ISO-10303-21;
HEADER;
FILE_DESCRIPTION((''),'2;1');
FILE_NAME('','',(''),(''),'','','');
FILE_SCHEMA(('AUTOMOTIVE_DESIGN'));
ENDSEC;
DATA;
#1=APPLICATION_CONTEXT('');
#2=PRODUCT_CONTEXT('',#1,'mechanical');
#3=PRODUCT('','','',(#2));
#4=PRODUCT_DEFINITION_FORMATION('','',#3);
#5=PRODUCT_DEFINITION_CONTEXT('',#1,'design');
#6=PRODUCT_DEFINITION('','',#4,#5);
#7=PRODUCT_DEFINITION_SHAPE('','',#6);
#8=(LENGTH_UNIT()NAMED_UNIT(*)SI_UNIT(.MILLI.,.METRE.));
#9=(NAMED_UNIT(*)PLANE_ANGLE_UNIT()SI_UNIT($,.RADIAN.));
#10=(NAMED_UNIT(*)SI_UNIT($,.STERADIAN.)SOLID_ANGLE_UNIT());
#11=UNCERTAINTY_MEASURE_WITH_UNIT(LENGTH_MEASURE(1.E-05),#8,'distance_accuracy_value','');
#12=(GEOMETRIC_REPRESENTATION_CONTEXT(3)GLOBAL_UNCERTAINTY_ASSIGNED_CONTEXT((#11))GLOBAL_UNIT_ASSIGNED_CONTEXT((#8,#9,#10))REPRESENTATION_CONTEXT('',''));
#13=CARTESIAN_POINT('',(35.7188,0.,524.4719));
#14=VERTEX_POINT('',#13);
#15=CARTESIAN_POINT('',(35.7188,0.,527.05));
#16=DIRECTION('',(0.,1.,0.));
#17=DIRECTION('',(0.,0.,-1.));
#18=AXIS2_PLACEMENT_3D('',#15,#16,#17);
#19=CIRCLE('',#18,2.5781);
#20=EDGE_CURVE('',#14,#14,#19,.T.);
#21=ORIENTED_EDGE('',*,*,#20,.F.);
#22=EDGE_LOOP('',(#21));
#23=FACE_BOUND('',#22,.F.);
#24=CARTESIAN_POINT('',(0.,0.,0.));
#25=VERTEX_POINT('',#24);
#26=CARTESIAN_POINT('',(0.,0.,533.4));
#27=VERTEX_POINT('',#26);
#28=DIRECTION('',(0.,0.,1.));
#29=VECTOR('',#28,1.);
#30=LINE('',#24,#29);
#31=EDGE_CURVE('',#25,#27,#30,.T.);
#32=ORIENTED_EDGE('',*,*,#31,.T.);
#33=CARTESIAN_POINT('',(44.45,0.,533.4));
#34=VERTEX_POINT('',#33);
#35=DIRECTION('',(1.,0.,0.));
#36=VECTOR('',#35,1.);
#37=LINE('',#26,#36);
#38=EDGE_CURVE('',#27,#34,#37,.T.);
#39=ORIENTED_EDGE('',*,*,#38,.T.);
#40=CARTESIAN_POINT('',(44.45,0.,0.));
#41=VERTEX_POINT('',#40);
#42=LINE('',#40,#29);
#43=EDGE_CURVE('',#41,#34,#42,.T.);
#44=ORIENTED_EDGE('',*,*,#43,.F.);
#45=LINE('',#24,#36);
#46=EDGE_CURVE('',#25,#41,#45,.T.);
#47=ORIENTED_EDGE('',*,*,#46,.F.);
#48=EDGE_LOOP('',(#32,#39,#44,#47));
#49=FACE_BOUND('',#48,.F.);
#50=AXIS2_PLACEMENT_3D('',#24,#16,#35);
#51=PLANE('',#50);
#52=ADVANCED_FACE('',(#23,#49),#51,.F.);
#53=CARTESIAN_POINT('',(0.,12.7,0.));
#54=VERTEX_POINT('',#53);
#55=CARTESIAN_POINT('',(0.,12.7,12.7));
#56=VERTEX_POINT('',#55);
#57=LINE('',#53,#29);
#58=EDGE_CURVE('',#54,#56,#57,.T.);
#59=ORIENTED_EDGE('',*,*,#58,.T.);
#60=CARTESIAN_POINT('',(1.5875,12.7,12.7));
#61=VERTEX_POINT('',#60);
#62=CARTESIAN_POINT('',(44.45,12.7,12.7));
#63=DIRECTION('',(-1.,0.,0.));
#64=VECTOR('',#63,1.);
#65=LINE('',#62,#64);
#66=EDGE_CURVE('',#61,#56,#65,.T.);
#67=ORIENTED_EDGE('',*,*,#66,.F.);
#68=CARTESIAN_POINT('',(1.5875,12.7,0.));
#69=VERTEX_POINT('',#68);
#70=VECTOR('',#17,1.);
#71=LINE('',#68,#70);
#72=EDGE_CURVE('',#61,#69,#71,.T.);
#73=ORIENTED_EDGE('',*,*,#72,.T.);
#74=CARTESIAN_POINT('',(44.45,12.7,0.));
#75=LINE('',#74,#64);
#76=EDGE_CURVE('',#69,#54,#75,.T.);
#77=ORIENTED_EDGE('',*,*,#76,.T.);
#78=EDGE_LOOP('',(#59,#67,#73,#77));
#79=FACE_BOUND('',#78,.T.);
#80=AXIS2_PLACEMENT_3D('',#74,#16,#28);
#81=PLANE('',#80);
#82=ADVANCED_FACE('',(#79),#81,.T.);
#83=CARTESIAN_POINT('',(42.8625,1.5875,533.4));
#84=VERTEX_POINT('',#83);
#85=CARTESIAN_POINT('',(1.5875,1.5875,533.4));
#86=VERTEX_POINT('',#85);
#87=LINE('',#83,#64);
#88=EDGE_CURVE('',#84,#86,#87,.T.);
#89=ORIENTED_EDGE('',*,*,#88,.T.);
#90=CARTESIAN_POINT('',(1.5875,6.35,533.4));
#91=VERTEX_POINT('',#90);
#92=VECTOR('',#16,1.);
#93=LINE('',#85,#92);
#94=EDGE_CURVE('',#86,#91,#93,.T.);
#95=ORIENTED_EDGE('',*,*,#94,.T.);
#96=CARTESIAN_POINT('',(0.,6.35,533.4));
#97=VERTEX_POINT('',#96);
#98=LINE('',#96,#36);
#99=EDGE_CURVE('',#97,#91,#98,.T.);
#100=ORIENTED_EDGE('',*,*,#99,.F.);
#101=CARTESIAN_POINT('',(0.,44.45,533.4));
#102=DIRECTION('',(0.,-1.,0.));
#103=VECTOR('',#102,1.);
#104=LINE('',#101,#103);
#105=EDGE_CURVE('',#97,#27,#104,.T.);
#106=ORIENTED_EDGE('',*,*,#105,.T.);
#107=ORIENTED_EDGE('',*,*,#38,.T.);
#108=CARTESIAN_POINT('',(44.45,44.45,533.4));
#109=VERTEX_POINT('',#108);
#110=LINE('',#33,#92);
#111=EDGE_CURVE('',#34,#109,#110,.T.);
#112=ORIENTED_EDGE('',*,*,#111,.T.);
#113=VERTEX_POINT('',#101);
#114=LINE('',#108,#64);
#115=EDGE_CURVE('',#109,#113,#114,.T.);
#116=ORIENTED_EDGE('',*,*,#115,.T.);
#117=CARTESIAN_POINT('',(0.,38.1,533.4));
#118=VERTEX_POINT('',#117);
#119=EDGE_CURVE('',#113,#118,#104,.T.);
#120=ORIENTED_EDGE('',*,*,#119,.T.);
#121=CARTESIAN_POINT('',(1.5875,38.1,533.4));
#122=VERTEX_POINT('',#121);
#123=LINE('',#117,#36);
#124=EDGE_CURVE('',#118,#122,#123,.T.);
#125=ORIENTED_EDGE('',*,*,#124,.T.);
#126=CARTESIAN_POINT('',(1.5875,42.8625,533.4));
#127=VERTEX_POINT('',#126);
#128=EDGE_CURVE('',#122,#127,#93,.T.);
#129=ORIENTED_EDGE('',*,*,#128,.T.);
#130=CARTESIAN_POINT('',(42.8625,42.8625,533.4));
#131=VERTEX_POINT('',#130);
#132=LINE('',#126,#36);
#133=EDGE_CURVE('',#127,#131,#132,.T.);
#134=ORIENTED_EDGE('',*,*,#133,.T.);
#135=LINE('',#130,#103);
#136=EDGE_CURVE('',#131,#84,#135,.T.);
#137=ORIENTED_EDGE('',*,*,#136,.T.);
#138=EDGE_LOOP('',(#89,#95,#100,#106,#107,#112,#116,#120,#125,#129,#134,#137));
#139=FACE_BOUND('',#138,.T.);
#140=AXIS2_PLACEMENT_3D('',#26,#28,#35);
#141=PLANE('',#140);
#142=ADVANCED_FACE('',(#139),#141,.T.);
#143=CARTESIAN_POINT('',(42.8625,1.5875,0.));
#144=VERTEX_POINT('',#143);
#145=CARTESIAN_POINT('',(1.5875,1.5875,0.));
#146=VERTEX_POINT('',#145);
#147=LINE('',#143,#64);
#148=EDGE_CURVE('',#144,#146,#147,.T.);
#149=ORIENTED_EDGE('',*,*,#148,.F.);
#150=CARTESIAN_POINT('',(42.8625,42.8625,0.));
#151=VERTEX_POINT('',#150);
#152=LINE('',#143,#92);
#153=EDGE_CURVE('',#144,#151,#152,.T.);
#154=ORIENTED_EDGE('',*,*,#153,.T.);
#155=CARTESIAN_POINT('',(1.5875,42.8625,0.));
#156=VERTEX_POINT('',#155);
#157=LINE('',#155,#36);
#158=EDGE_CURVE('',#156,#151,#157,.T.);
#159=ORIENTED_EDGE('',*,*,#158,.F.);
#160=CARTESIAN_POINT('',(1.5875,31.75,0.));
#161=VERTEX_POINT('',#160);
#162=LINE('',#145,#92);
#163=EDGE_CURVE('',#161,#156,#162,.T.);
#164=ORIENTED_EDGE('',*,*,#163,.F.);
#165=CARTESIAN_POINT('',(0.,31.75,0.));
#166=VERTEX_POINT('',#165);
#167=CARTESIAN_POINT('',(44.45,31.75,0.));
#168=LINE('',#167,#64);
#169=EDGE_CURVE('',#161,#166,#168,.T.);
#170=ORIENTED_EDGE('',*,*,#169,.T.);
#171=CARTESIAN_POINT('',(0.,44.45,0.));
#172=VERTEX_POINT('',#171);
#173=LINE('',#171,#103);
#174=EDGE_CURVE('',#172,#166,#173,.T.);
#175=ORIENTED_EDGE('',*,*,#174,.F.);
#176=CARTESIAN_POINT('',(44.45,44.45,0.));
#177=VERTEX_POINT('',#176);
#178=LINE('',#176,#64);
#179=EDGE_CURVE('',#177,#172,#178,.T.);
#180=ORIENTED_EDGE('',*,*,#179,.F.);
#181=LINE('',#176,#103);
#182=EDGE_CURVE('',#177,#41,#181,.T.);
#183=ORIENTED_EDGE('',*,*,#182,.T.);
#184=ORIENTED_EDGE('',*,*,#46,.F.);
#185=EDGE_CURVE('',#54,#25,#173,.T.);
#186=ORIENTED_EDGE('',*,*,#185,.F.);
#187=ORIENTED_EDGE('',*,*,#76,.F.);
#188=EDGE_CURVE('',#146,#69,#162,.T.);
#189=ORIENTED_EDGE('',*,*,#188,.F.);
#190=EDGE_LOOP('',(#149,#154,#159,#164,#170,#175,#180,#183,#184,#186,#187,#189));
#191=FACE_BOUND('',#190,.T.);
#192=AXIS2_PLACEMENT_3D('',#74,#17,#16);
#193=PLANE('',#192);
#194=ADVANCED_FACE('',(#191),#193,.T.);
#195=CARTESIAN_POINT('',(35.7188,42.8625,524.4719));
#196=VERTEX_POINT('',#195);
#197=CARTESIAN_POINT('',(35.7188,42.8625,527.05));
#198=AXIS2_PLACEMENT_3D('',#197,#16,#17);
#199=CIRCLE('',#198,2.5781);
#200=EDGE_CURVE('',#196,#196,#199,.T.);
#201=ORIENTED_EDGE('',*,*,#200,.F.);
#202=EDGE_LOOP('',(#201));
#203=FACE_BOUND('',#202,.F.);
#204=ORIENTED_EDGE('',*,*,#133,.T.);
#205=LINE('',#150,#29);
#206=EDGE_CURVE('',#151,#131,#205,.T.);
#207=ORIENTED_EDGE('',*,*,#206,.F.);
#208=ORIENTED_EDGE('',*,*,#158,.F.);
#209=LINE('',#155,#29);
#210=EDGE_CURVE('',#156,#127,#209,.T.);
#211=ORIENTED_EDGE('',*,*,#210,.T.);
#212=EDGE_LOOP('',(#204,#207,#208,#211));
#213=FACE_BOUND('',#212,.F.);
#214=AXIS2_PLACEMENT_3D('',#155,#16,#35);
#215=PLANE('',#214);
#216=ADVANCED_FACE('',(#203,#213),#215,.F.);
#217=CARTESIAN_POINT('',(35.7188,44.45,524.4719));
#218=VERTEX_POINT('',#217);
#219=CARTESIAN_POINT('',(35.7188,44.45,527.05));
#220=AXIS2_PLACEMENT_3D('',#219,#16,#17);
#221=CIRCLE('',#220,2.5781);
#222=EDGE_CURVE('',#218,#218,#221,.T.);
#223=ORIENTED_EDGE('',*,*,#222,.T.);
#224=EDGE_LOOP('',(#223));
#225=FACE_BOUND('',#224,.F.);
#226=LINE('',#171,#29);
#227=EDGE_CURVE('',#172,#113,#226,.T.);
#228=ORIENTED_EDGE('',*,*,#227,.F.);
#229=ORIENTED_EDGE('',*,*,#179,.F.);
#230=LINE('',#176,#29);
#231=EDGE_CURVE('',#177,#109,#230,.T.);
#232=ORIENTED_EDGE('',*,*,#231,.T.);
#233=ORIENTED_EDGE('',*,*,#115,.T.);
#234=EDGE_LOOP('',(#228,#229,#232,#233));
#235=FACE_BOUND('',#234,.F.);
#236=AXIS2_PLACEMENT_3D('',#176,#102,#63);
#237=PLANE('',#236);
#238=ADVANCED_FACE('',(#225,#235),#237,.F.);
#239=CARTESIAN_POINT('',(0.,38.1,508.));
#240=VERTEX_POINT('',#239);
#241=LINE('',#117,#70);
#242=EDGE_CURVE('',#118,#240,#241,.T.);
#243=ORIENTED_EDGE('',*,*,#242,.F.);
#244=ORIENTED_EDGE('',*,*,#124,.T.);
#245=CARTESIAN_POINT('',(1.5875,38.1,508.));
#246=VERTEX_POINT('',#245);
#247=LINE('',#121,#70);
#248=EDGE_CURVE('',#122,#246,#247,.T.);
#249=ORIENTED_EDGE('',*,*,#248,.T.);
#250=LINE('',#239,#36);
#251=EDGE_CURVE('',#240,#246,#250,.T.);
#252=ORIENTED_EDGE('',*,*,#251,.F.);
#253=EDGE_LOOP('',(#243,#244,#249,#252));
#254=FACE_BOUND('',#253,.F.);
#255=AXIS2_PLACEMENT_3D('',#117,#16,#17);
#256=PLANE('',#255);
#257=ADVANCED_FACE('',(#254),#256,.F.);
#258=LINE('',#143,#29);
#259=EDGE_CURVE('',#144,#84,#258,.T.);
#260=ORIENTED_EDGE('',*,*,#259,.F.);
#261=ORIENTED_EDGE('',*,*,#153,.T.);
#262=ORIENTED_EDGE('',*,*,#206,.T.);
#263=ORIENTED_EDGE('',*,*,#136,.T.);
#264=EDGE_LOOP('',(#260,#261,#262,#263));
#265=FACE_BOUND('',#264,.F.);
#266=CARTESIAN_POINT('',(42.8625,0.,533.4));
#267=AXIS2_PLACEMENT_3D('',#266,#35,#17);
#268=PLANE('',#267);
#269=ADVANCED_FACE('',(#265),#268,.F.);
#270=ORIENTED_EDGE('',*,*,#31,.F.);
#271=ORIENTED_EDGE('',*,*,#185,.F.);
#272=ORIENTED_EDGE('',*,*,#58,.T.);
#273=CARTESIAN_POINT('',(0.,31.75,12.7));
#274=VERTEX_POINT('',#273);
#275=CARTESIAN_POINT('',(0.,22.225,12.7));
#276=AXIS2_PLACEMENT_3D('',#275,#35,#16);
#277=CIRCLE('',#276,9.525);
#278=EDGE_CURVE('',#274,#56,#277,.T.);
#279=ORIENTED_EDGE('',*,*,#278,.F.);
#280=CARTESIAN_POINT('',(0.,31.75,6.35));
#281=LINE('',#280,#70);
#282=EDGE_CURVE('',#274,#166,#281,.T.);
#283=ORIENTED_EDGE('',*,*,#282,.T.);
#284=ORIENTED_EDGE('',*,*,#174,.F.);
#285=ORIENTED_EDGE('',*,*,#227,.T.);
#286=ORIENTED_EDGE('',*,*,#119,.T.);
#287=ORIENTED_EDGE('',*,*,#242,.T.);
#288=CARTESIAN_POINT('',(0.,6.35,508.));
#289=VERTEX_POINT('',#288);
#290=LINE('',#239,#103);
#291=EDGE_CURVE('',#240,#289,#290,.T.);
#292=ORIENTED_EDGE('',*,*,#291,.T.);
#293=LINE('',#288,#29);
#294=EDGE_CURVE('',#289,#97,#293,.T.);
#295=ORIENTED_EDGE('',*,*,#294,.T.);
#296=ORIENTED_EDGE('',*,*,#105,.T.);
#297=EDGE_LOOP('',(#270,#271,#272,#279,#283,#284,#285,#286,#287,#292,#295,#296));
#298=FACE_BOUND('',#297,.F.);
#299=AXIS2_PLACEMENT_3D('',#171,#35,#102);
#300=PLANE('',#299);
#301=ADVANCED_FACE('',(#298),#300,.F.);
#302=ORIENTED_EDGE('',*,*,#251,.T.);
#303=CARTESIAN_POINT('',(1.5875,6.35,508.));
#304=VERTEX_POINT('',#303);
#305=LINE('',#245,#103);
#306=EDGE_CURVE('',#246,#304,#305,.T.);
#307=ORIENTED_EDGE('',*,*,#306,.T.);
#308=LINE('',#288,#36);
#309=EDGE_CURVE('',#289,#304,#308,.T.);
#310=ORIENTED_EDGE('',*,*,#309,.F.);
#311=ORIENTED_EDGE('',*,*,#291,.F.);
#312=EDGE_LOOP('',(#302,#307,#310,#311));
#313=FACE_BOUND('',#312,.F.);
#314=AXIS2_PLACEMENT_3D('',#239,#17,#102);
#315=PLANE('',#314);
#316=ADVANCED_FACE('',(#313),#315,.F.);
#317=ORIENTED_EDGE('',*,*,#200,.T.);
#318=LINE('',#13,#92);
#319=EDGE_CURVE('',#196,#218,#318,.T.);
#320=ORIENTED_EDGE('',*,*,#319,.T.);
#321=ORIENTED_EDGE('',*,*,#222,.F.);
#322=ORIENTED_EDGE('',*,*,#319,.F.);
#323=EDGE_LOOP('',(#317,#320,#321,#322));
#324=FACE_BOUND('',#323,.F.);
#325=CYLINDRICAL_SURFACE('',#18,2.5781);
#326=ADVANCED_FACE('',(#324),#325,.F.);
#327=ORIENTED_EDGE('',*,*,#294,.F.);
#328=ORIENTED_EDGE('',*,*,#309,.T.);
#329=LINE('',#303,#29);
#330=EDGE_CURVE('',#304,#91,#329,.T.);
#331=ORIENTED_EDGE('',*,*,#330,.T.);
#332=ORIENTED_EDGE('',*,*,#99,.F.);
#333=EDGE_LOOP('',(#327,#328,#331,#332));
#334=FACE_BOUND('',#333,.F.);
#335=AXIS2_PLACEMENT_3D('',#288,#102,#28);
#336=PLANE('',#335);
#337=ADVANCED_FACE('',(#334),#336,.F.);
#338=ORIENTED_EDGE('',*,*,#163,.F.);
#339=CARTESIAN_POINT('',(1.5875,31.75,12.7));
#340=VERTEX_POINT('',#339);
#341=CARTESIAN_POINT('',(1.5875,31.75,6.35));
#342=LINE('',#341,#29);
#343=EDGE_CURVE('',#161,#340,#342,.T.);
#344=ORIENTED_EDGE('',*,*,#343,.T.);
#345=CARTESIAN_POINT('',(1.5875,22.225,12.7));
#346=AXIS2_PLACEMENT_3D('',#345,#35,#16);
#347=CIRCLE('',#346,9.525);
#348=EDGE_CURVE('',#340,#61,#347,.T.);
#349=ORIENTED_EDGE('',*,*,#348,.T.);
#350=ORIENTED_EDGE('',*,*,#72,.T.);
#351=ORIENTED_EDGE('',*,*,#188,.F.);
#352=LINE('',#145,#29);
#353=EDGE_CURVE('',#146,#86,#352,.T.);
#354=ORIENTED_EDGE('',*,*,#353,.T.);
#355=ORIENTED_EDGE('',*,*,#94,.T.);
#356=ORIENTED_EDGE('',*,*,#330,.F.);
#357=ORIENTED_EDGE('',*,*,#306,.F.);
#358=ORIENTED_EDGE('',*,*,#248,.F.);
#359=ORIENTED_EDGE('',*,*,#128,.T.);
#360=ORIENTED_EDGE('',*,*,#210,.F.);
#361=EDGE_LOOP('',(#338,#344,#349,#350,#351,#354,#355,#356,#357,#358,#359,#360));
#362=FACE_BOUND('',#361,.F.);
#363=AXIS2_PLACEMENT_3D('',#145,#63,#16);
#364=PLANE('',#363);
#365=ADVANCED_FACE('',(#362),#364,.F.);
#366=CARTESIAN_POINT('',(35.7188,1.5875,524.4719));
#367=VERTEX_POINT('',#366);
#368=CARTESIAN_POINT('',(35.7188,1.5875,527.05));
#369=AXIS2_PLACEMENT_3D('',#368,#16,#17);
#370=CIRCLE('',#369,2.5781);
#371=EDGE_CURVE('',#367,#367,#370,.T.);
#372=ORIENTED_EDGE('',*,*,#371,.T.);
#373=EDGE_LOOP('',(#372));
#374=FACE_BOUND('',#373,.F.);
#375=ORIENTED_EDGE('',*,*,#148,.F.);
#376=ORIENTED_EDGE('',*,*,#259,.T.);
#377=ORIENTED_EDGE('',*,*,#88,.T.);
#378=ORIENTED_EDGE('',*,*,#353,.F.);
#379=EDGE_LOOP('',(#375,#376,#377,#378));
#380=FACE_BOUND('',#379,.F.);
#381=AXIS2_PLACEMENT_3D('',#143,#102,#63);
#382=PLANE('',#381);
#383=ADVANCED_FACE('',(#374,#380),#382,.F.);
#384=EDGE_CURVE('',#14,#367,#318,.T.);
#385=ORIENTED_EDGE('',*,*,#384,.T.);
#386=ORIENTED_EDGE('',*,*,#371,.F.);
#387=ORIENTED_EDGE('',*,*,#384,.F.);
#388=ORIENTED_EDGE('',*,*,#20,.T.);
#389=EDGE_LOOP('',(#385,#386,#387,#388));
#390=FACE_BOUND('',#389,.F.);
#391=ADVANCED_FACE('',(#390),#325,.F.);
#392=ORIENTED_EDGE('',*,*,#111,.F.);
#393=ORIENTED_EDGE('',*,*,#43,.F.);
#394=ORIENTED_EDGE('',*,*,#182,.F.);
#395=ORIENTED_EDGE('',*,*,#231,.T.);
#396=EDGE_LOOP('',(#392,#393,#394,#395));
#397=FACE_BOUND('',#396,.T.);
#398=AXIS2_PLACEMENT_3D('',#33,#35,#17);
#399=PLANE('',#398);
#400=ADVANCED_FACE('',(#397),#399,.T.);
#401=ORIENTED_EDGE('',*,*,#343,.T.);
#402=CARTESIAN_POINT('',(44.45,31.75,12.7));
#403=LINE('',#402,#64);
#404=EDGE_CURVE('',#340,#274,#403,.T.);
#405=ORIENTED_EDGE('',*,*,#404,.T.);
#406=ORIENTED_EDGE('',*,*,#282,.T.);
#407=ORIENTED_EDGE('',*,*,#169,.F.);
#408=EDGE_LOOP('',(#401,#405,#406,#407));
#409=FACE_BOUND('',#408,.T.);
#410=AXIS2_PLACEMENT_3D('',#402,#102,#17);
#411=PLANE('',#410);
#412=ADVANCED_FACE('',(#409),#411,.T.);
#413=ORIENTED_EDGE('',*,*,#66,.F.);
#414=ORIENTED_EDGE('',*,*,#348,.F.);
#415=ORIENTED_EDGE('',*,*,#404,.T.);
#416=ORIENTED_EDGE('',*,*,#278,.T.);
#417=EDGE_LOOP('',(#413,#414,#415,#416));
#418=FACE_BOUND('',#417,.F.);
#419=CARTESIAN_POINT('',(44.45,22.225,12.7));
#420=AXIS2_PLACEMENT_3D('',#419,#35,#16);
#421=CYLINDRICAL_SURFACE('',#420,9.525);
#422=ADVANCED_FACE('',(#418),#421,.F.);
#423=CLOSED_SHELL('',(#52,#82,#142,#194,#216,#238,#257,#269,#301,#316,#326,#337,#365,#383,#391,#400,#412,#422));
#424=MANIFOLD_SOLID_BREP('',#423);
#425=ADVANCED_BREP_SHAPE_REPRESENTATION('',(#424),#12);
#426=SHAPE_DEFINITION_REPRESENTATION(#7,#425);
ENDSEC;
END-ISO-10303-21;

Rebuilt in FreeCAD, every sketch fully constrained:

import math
import FreeCAD as App
import Part
import Sketcher
Q = App.Units.Quantity

doc = App.newDocument("Part")
body = doc.addObject("PartDesign::Body", "Body")

# Sketch on XY plane
sketch1 = body.newObject("Sketcher::SketchObject", "Sketch")
sketch1.AttachmentSupport = (doc.getObject("XY_Plane"), [""])
sketch1.MapMode = "FlatFace"
sketch1.addGeometry([
    Part.LineSegment(App.Vector(0, 44.45, 0), App.Vector(0, 0, 0)),  # 0
    Part.LineSegment(App.Vector(0, 0, 0), App.Vector(44.45, 0, 0)),  # 1
    Part.LineSegment(App.Vector(44.45, 0, 0), App.Vector(44.45, 44.45, 0)),  # 2
    Part.LineSegment(App.Vector(44.45, 44.45, 0), App.Vector(0, 44.45, 0)),  # 3
    Part.LineSegment(App.Vector(1.5875, 1.5875, 0), App.Vector(1.5875, 42.8625, 0)),  # 4
    Part.LineSegment(App.Vector(1.5875, 42.8625, 0), App.Vector(42.8625, 42.8625, 0)),  # 5
    Part.LineSegment(App.Vector(42.8625, 42.8625, 0), App.Vector(42.8625, 1.5875, 0)),  # 6
    Part.LineSegment(App.Vector(42.8625, 1.5875, 0), App.Vector(1.5875, 1.5875, 0)),  # 7
], False)
sketch1.addConstraint([
    Sketcher.Constraint("Coincident", 0, 2, 1, 1),
    Sketcher.Constraint("Coincident", 1, 2, 2, 1),
    Sketcher.Constraint("Coincident", 2, 2, 3, 1),
    Sketcher.Constraint("Coincident", 3, 2, 0, 1),
    Sketcher.Constraint("Coincident", 4, 2, 5, 1),
    Sketcher.Constraint("Coincident", 5, 2, 6, 1),
    Sketcher.Constraint("Coincident", 6, 2, 7, 1),
    Sketcher.Constraint("Coincident", 7, 2, 4, 1),
    Sketcher.Constraint("Vertical", 0),
    Sketcher.Constraint("Horizontal", 1),
    Sketcher.Constraint("Vertical", 2),
    Sketcher.Constraint("Horizontal", 3),
    Sketcher.Constraint("Vertical", 4),
    Sketcher.Constraint("Horizontal", 5),
    Sketcher.Constraint("Vertical", 6),
    Sketcher.Constraint("Horizontal", 7),
    Sketcher.Constraint("Coincident", 0, 2, -1, 1),
    Sketcher.Constraint("Equal", 3, 0),
    Sketcher.Constraint("Equal", 7, 4),
    Sketcher.Constraint("DistanceX", 1, 1, 1, 2, Q("1.75 in")),
    Sketcher.Constraint("DistanceX", -1, 1, 4, 2, Q("0.0625 in")),
    Sketcher.Constraint("DistanceY", -1, 1, 6, 2, Q("0.0625 in")),
    Sketcher.Constraint("DistanceY", 4, 2, 3, 2, Q("0.0625 in")),
])
pad1 = body.newObject("PartDesign::Pad", "Pad")
pad1.Profile = sketch1
pad1.Length = Q("21 in")

# Sketch on YZ plane
sketch2 = body.newObject("Sketcher::SketchObject", "Sketch001")
sketch2.AttachmentSupport = (doc.getObject("YZ_Plane"), [""])
sketch2.MapMode = "FlatFace"
sketch2.AttachmentOffset = App.Placement(App.Vector(0, 0, 1.75 * 25.4), App.Rotation())
sketch2.addGeometry([
    Part.ArcOfCircle(Part.Circle(App.Vector(22.225, 0, 0), App.Vector(0, 0, 1), 9.525), math.radians(180), math.radians(360)),
    Part.LineSegment(App.Vector(31.75, 0, 0), App.Vector(31.75, 12.7, 0)),
    Part.ArcOfCircle(Part.Circle(App.Vector(22.225, 12.7, 0), App.Vector(0, 0, 1), 9.525), math.radians(0), math.radians(180)),
    Part.LineSegment(App.Vector(12.7, 12.7, 0), App.Vector(12.7, 0, 0)),
], False)
sketch2.addConstraint([
    Sketcher.Constraint("Tangent", 0, 2, 1, 1),
    Sketcher.Constraint("Tangent", 1, 2, 2, 1),
    Sketcher.Constraint("Tangent", 2, 2, 3, 1),
    Sketcher.Constraint("Tangent", 3, 2, 0, 1),
    Sketcher.Constraint("Vertical", 1),
    Sketcher.Constraint("Vertical", 3),
    Sketcher.Constraint("PointOnObject", 0, 3, -1),
    Sketcher.Constraint("DistanceY", 1, 1, 1, 2, Q("0.5 in")),
    Sketcher.Constraint("Radius", 0, Q("0.375 in")),
    Sketcher.Constraint("DistanceX", -1, 1, 2, 2, Q("0.5 in")),
])
pocket1 = body.newObject("PartDesign::Pocket", "Pocket")
pocket1.Profile = sketch2
pocket1.Length = Q("5 in")

# Sketch on YZ plane
sketch3 = body.newObject("Sketcher::SketchObject", "Sketch002")
sketch3.AttachmentSupport = (doc.getObject("YZ_Plane"), [""])
sketch3.MapMode = "FlatFace"
sketch3.AttachmentOffset = App.Placement(App.Vector(0, 0, 1.75 * 25.4), App.Rotation())
sketch3.addGeometry([
    Part.LineSegment(App.Vector(31.75, 0, 0), App.Vector(31.75, 12.7, 0)),
    Part.ArcOfCircle(Part.Circle(App.Vector(22.225, 12.7, 0), App.Vector(0, 0, 1), 9.525), math.radians(0), math.radians(180)),
    Part.LineSegment(App.Vector(12.7, 12.7, 0), App.Vector(12.7, 0, 0)),
    Part.LineSegment(App.Vector(12.7, 0, 0), App.Vector(31.75, 0, 0)),
], False)
sketch3.addConstraint([
    Sketcher.Constraint("Tangent", 0, 2, 1, 1),
    Sketcher.Constraint("Tangent", 1, 2, 2, 1),
    Sketcher.Constraint("Coincident", 2, 2, 3, 1),
    Sketcher.Constraint("Coincident", 3, 2, 0, 1),
    Sketcher.Constraint("Vertical", 0),
    Sketcher.Constraint("Vertical", 2),
    Sketcher.Constraint("Horizontal", 3),
    Sketcher.Constraint("PointOnObject", 2, 2, -1),
    Sketcher.Constraint("DistanceY", 0, 1, 0, 2, Q("0.5 in")),
    Sketcher.Constraint("Radius", 1, Q("0.375 in")),
    Sketcher.Constraint("DistanceX", -1, 1, 1, 2, Q("0.5 in")),
])
pad2 = body.newObject("PartDesign::Pad", "Pad001")
pad2.Profile = sketch3
pad2.Length = Q("0.0625 in")
pad2.Reversed = True

# Sketch on YZ plane
sketch4 = body.newObject("Sketcher::SketchObject", "Sketch003")
sketch4.AttachmentSupport = (doc.getObject("YZ_Plane"), [""])
sketch4.MapMode = "FlatFace"
sketch4.addGeometry([
    Part.LineSegment(App.Vector(6.35, 508, 0), App.Vector(6.35, 533.4, 0)),
    Part.LineSegment(App.Vector(6.35, 533.4, 0), App.Vector(38.1, 533.4, 0)),
    Part.LineSegment(App.Vector(38.1, 533.4, 0), App.Vector(38.1, 508, 0)),
    Part.LineSegment(App.Vector(38.1, 508, 0), App.Vector(6.35, 508, 0)),
], False)
sketch4.addConstraint([
    Sketcher.Constraint("Coincident", 0, 2, 1, 1),
    Sketcher.Constraint("Coincident", 1, 2, 2, 1),
    Sketcher.Constraint("Coincident", 2, 2, 3, 1),
    Sketcher.Constraint("Coincident", 3, 2, 0, 1),
    Sketcher.Constraint("Vertical", 0),
    Sketcher.Constraint("Horizontal", 1),
    Sketcher.Constraint("Vertical", 2),
    Sketcher.Constraint("Horizontal", 3),
    Sketcher.Constraint("DistanceY", 0, 1, 0, 2, Q("1 in")),
    Sketcher.Constraint("DistanceX", 1, 1, 1, 2, Q("1.25 in")),
    Sketcher.Constraint("DistanceX", -1, 1, 0, 2, Q("0.25 in")),
    Sketcher.Constraint("DistanceY", -1, 1, 0, 2, Q("21 in")),
])
pocket2 = body.newObject("PartDesign::Pocket", "Pocket001")
pocket2.Profile = sketch4
pocket2.Length = Q("0.0625 in")
pocket2.Reversed = True

# Sketch on XZ plane
sketch5 = body.newObject("Sketcher::SketchObject", "Sketch004")
sketch5.AttachmentSupport = (doc.getObject("XZ_Plane"), [""])
sketch5.MapMode = "FlatFace"
sketch5.addGeometry(Part.Circle(App.Vector(35.7188, 527.05, 0), App.Vector(0, 0, 1), 2.5781), False)
sketch5.addConstraint([
    Sketcher.Constraint("Diameter", 0, Q("0.203 in")),
    Sketcher.Constraint("DistanceY", -1, 1, 0, 3, Q("20.75 in")),
    Sketcher.Constraint("DistanceX", -1, 1, 0, 3, Q("1.406252 in")),
])
doc.recompute()
hole = body.newObject("PartDesign::Hole", "Hole")
hole.Profile = sketch5
hole.ThreadType = "None"
hole.Diameter = Q("0.203 in")
hole.DepthType = "Dimension"
hole.Depth = Q("3 in")
hole.DrillPoint = "Angled"
hole.DrillPointAngle = 118

doc.recompute()
